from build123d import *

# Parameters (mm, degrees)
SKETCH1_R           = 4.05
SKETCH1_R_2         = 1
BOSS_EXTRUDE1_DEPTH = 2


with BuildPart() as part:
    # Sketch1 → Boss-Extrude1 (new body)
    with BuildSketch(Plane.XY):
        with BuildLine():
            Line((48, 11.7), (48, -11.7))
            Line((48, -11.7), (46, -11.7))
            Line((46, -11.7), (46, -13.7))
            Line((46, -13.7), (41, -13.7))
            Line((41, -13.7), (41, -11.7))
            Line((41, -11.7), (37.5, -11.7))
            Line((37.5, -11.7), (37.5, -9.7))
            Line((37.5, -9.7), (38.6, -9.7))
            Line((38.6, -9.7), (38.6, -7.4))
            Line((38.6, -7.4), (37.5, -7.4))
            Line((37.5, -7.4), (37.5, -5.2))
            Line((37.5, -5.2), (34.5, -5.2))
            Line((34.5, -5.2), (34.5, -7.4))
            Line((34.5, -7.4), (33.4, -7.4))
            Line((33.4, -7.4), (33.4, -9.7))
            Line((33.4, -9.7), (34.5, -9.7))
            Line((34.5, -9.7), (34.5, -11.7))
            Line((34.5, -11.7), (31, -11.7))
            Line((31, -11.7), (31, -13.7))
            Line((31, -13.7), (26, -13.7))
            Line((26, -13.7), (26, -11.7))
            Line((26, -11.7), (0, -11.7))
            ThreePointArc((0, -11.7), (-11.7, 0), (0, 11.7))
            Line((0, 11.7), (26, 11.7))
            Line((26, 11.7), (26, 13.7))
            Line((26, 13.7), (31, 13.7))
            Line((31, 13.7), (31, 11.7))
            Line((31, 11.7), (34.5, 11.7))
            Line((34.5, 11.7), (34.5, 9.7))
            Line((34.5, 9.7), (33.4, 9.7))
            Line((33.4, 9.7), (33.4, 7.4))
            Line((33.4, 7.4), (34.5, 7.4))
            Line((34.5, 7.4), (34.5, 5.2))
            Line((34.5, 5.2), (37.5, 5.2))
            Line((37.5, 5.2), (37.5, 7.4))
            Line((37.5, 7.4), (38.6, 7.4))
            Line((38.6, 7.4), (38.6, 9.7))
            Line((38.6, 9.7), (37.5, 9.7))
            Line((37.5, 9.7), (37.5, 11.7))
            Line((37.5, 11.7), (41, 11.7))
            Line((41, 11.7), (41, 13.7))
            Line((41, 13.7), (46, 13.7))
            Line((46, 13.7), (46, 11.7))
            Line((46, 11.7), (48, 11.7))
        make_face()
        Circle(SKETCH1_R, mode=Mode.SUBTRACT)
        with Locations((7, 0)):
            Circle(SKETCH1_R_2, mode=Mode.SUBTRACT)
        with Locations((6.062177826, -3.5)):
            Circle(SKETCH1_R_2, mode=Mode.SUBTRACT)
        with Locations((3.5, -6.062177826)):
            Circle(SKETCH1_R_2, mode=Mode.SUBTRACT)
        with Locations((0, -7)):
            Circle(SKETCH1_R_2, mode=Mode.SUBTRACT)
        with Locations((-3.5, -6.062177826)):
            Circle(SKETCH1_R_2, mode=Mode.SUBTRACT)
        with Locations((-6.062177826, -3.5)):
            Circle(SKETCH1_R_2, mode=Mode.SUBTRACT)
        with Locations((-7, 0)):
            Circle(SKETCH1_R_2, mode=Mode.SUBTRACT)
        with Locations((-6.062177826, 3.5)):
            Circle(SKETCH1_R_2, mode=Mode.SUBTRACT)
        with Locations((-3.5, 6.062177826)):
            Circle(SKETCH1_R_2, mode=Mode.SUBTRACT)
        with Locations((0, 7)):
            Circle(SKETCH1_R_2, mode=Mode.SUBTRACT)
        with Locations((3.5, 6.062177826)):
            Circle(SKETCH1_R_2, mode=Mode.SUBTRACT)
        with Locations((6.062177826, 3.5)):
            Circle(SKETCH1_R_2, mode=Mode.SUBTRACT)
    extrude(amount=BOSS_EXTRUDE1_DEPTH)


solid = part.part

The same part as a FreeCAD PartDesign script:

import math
import FreeCAD as App
import Part
import Sketcher
from FreeCAD import Vector
Q = App.Units.Quantity

doc = App.newDocument("Part")
body = doc.addObject("PartDesign::Body", "Body")

# Sketch on XY plane
sketch1 = body.newObject("Sketcher::SketchObject", "Sketch")
sketch1.AttachmentSupport = (doc.getObject("XY_Plane"), [""])
sketch1.MapMode = "FlatFace"
sketch1.addGeometry([
    Part.LineSegment(Vector(48, -11.7, 0), Vector(48, 11.7, 0)),  # 0
    Part.LineSegment(Vector(48, 11.7, 0), Vector(46, 11.7, 0)),  # 1
    Part.LineSegment(Vector(46, 11.7, 0), Vector(46, 13.7, 0)),  # 2
    Part.LineSegment(Vector(46, 13.7, 0), Vector(41, 13.7, 0)),  # 3
    Part.LineSegment(Vector(41, 13.7, 0), Vector(41, 11.7, 0)),  # 4
    Part.LineSegment(Vector(41, 11.7, 0), Vector(37.5, 11.7, 0)),  # 5
    Part.LineSegment(Vector(37.5, 11.7, 0), Vector(37.5, 9.7, 0)),  # 6
    Part.LineSegment(Vector(37.5, 9.7, 0), Vector(38.6, 9.7, 0)),  # 7
    Part.LineSegment(Vector(38.6, 9.7, 0), Vector(38.6, 7.4, 0)),  # 8
    Part.LineSegment(Vector(38.6, 7.4, 0), Vector(37.5, 7.4, 0)),  # 9
    Part.LineSegment(Vector(37.5, 7.4, 0), Vector(37.5, 5.2, 0)),  # 10
    Part.LineSegment(Vector(37.5, 5.2, 0), Vector(34.5, 5.2, 0)),  # 11
    Part.LineSegment(Vector(34.5, 5.2, 0), Vector(34.5, 7.4, 0)),  # 12
    Part.LineSegment(Vector(34.5, 7.4, 0), Vector(33.4, 7.4, 0)),  # 13
    Part.LineSegment(Vector(33.4, 7.4, 0), Vector(33.4, 9.7, 0)),  # 14
    Part.LineSegment(Vector(33.4, 9.7, 0), Vector(34.5, 9.7, 0)),  # 15
    Part.LineSegment(Vector(34.5, 9.7, 0), Vector(34.5, 11.7, 0)),  # 16
    Part.LineSegment(Vector(34.5, 11.7, 0), Vector(31, 11.7, 0)),  # 17
    Part.LineSegment(Vector(31, 11.7, 0), Vector(31, 13.7, 0)),  # 18
    Part.LineSegment(Vector(31, 13.7, 0), Vector(26, 13.7, 0)),  # 19
    Part.LineSegment(Vector(26, 13.7, 0), Vector(26, 11.7, 0)),  # 20
    Part.LineSegment(Vector(26, 11.7, 0), Vector(0, 11.7, 0)),  # 21
    Part.ArcOfCircle(Part.Circle(Vector(0, 0, 0), Vector(0, 0, 1), 11.7), math.radians(90), math.radians(270)),  # 22
    Part.LineSegment(Vector(0, -11.7, 0), Vector(26, -11.7, 0)),  # 23
    Part.LineSegment(Vector(26, -11.7, 0), Vector(26, -13.7, 0)),  # 24
    Part.LineSegment(Vector(26, -13.7, 0), Vector(31, -13.7, 0)),  # 25
    Part.LineSegment(Vector(31, -13.7, 0), Vector(31, -11.7, 0)),  # 26
    Part.LineSegment(Vector(31, -11.7, 0), Vector(34.5, -11.7, 0)),  # 27
    Part.LineSegment(Vector(34.5, -11.7, 0), Vector(34.5, -9.7, 0)),  # 28
    Part.LineSegment(Vector(34.5, -9.7, 0), Vector(33.4, -9.7, 0)),  # 29
    Part.LineSegment(Vector(33.4, -9.7, 0), Vector(33.4, -7.4, 0)),  # 30
    Part.LineSegment(Vector(33.4, -7.4, 0), Vector(34.5, -7.4, 0)),  # 31
    Part.LineSegment(Vector(34.5, -7.4, 0), Vector(34.5, -5.2, 0)),  # 32
    Part.LineSegment(Vector(34.5, -5.2, 0), Vector(37.5, -5.2, 0)),  # 33
    Part.LineSegment(Vector(37.5, -5.2, 0), Vector(37.5, -7.4, 0)),  # 34
    Part.LineSegment(Vector(37.5, -7.4, 0), Vector(38.6, -7.4, 0)),  # 35
    Part.LineSegment(Vector(38.6, -7.4, 0), Vector(38.6, -9.7, 0)),  # 36
    Part.LineSegment(Vector(38.6, -9.7, 0), Vector(37.5, -9.7, 0)),  # 37
    Part.LineSegment(Vector(37.5, -9.7, 0), Vector(37.5, -11.7, 0)),  # 38
    Part.LineSegment(Vector(37.5, -11.7, 0), Vector(41, -11.7, 0)),  # 39
    Part.LineSegment(Vector(41, -11.7, 0), Vector(41, -13.7, 0)),  # 40
    Part.LineSegment(Vector(41, -13.7, 0), Vector(46, -13.7, 0)),  # 41
    Part.LineSegment(Vector(46, -13.7, 0), Vector(46, -11.7, 0)),  # 42
    Part.LineSegment(Vector(46, -11.7, 0), Vector(48, -11.7, 0)),  # 43
    Part.Circle(Vector(3.5, -6.1, 0), Vector(0, 0, 1), 1),  # 44
    Part.Circle(Vector(6.1, -3.5, 0), Vector(0, 0, 1), 1),  # 45
    Part.Circle(Vector(0, -7, 0), Vector(0, 0, 1), 1),  # 46
    Part.Circle(Vector(-3.5, -6.1, 0), Vector(0, 0, 1), 1),  # 47
    Part.Circle(Vector(-6.1, -3.5, 0), Vector(0, 0, 1), 1),  # 48
    Part.Circle(Vector(7, 0, 0), Vector(0, 0, 1), 1),  # 49
    Part.Circle(Vector(6.1, 3.5, 0), Vector(0, 0, 1), 1),  # 50
    Part.Circle(Vector(3.5, 6.1, 0), Vector(0, 0, 1), 1),  # 51
    Part.Circle(Vector(0, 0, 0), Vector(0, 0, 1), 4),  # 52
    Part.Circle(Vector(-7, 0, 0), Vector(0, 0, 1), 1),  # 53
    Part.Circle(Vector(-6.1, 3.5, 0), Vector(0, 0, 1), 1),  # 54
    Part.Circle(Vector(0, 7, 0), Vector(0, 0, 1), 1),  # 55
    Part.Circle(Vector(-3.5, 6.1, 0), Vector(0, 0, 1), 1),  # 56
], False)
sketch1.addConstraint([
    Sketcher.Constraint("Coincident", 0, 2, 1, 1),
    Sketcher.Constraint("Coincident", 1, 2, 2, 1),
    Sketcher.Constraint("Coincident", 2, 2, 3, 1),
    Sketcher.Constraint("Coincident", 3, 2, 4, 1),
    Sketcher.Constraint("Coincident", 4, 2, 5, 1),
    Sketcher.Constraint("Coincident", 5, 2, 6, 1),
    Sketcher.Constraint("Coincident", 6, 2, 7, 1),
    Sketcher.Constraint("Coincident", 7, 2, 8, 1),
    Sketcher.Constraint("Coincident", 8, 2, 9, 1),
    Sketcher.Constraint("Coincident", 9, 2, 10, 1),
    Sketcher.Constraint("Coincident", 10, 2, 11, 1),
    Sketcher.Constraint("Coincident", 11, 2, 12, 1),
    Sketcher.Constraint("Coincident", 12, 2, 13, 1),
    Sketcher.Constraint("Coincident", 13, 2, 14, 1),
    Sketcher.Constraint("Coincident", 14, 2, 15, 1),
    Sketcher.Constraint("Coincident", 15, 2, 16, 1),
    Sketcher.Constraint("Coincident", 16, 2, 17, 1),
    Sketcher.Constraint("Coincident", 17, 2, 18, 1),
    Sketcher.Constraint("Coincident", 18, 2, 19, 1),
    Sketcher.Constraint("Coincident", 19, 2, 20, 1),
    Sketcher.Constraint("Coincident", 20, 2, 21, 1),
    Sketcher.Constraint("Tangent", 21, 2, 22, 1),
    Sketcher.Constraint("Tangent", 22, 2, 23, 1),
    Sketcher.Constraint("Coincident", 23, 2, 24, 1),
    Sketcher.Constraint("Coincident", 24, 2, 25, 1),
    Sketcher.Constraint("Coincident", 25, 2, 26, 1),
    Sketcher.Constraint("Coincident", 26, 2, 27, 1),
    Sketcher.Constraint("Coincident", 27, 2, 28, 1),
    Sketcher.Constraint("Coincident", 28, 2, 29, 1),
    Sketcher.Constraint("Coincident", 29, 2, 30, 1),
    Sketcher.Constraint("Coincident", 30, 2, 31, 1),
    Sketcher.Constraint("Coincident", 31, 2, 32, 1),
    Sketcher.Constraint("Coincident", 32, 2, 33, 1),
    Sketcher.Constraint("Coincident", 33, 2, 34, 1),
    Sketcher.Constraint("Coincident", 34, 2, 35, 1),
    Sketcher.Constraint("Coincident", 35, 2, 36, 1),
    Sketcher.Constraint("Coincident", 36, 2, 37, 1),
    Sketcher.Constraint("Coincident", 37, 2, 38, 1),
    Sketcher.Constraint("Coincident", 38, 2, 39, 1),
    Sketcher.Constraint("Coincident", 39, 2, 40, 1),
    Sketcher.Constraint("Coincident", 40, 2, 41, 1),
    Sketcher.Constraint("Coincident", 41, 2, 42, 1),
    Sketcher.Constraint("Coincident", 42, 2, 43, 1),
    Sketcher.Constraint("Coincident", 43, 2, 0, 1),
    Sketcher.Constraint("Vertical", 0),
    Sketcher.Constraint("Horizontal", 1),
    Sketcher.Constraint("Vertical", 2),
    Sketcher.Constraint("Horizontal", 3),
    Sketcher.Constraint("Vertical", 4),
    Sketcher.Constraint("Horizontal", 5),
    Sketcher.Constraint("Vertical", 6),
    Sketcher.Constraint("Horizontal", 7),
    Sketcher.Constraint("Vertical", 8),
    Sketcher.Constraint("Horizontal", 9),
    Sketcher.Constraint("Vertical", 10),
    Sketcher.Constraint("Horizontal", 11),
    Sketcher.Constraint("Vertical", 12),
    Sketcher.Constraint("Horizontal", 13),
    Sketcher.Constraint("Vertical", 14),
    Sketcher.Constraint("Horizontal", 15),
    Sketcher.Constraint("Vertical", 16),
    Sketcher.Constraint("Horizontal", 17),
    Sketcher.Constraint("Vertical", 18),
    Sketcher.Constraint("Horizontal", 19),
    Sketcher.Constraint("Vertical", 20),
    Sketcher.Constraint("Horizontal", 21),
    Sketcher.Constraint("Horizontal", 23),
    Sketcher.Constraint("Vertical", 24),
    Sketcher.Constraint("Horizontal", 25),
    Sketcher.Constraint("Vertical", 26),
    Sketcher.Constraint("Horizontal", 27),
    Sketcher.Constraint("Vertical", 28),
    Sketcher.Constraint("Horizontal", 29),
    Sketcher.Constraint("Vertical", 30),
    Sketcher.Constraint("Horizontal", 31),
    Sketcher.Constraint("Vertical", 32),
    Sketcher.Constraint("Horizontal", 33),
    Sketcher.Constraint("Vertical", 34),
    Sketcher.Constraint("Horizontal", 35),
    Sketcher.Constraint("Vertical", 36),
    Sketcher.Constraint("Horizontal", 37),
    Sketcher.Constraint("Vertical", 38),
    Sketcher.Constraint("Horizontal", 39),
    Sketcher.Constraint("Vertical", 40),
    Sketcher.Constraint("Horizontal", 41),
    Sketcher.Constraint("Vertical", 42),
    Sketcher.Constraint("Horizontal", 43),
    Sketcher.Constraint("Coincident", 22, 3, -1, 1),
    Sketcher.Constraint("Coincident", 52, 3, -1, 1),
    Sketcher.Constraint("Equal", 44, 45),
    Sketcher.Constraint("Equal", 45, 46),
    Sketcher.Constraint("Equal", 46, 47),
    Sketcher.Constraint("Equal", 47, 48),
    Sketcher.Constraint("Equal", 48, 49),
    Sketcher.Constraint("Equal", 49, 50),
    Sketcher.Constraint("Equal", 50, 51),
    Sketcher.Constraint("Equal", 51, 53),
    Sketcher.Constraint("Equal", 53, 54),
    Sketcher.Constraint("Equal", 54, 55),
    Sketcher.Constraint("Equal", 55, 56),
    Sketcher.Constraint("Symmetric", 48, 3, 50, 3, -1, 1),
    Sketcher.Constraint("Symmetric", 47, 3, 51, 3, -1, 1),
    Sketcher.Constraint("Symmetric", 49, 3, 53, 3, -1, 1),
    Sketcher.Constraint("Symmetric", 45, 3, 54, 3, -1, 1),
    Sketcher.Constraint("Symmetric", 46, 3, 55, 3, -1, 1),
    Sketcher.Constraint("Symmetric", 44, 3, 56, 3, -1, 1),
    Sketcher.Constraint("Symmetric", 44, 3, 47, 3, -2),
    Sketcher.Constraint("Symmetric", 45, 3, 48, 3, -2),
    Sketcher.Constraint("Symmetric", 19, 2, 24, 2, -1),
    Sketcher.Constraint("Symmetric", 17, 2, 26, 2, -1),
    Sketcher.Constraint("Symmetric", 15, 2, 28, 2, -1),
    Sketcher.Constraint("Symmetric", 13, 2, 30, 2, -1),
    Sketcher.Constraint("Symmetric", 11, 2, 32, 2, -1),
    Sketcher.Constraint("Symmetric", 9, 2, 34, 2, -1),
    Sketcher.Constraint("Symmetric", 7, 2, 36, 2, -1),
    Sketcher.Constraint("Symmetric", 5, 2, 38, 2, -1),
    Sketcher.Constraint("Symmetric", 3, 2, 40, 2, -1),
    Sketcher.Constraint("Symmetric", 1, 2, 42, 2, -1),
    Sketcher.Constraint("PointOnObject", 46, 3, -2),
    Sketcher.Constraint("PointOnObject", 49, 3, -1),
    Sketcher.Constraint("Horizontal", 1, 2, 4, 2),
    Sketcher.Constraint("Horizontal", 9, 2, 12, 2),
    Sketcher.Constraint("Horizontal", 7, 2, 14, 2),
    Sketcher.Constraint("Horizontal", 5, 2, 16, 2),
    Sketcher.Constraint("Horizontal", 3, 2, 18, 2),
    Sketcher.Constraint("Horizontal", 17, 2, 20, 2),
    Sketcher.Constraint("Vertical", 6, 2, 9, 2),
    Sketcher.Constraint("Vertical", 12, 2, 15, 2),
    Sketcher.Constraint("Equal", 9, 13),
    Sketcher.Constraint("Equal", 5, 17),
    Sketcher.Constraint("Equal", 3, 19),
    Sketcher.Constraint("Equal", 43, 2),
    Sketcher.Constraint("Equal", 4, 6),
    Sketcher.Constraint("Diameter", 44, Q("2 mm")),
    Sketcher.Constraint("Diameter", 52, Q("8.1 mm")),
    Sketcher.Constraint("Radius", 22, Q("11.7 mm")),
    Sketcher.Constraint("DistanceX", 1, 2, 1, 1, Q("2 mm")),
    Sketcher.Constraint("DistanceX", 3, 2, 3, 1, Q("5 mm")),
    Sketcher.Constraint("DistanceX", 11, 2, 11, 1, Q("3 mm")),
    Sketcher.Constraint("DistanceX", 21, 2, 21, 1, Q("26 mm")),
    Sketcher.Constraint("DistanceX", 5, 2, 5, 1, Q("3.5 mm")),
    Sketcher.Constraint("DistanceX", 7, 1, 7, 2, Q("1.1 mm")),
    Sketcher.Constraint("DistanceY", 8, 2, 8, 1, Q("2.3 mm")),
    Sketcher.Constraint("DistanceY", 10, 2, 10, 1, Q("2.2 mm")),
    Sketcher.Constraint("DistanceY", 46, 3, -1, 1, Q("7 mm")),
    Sketcher.Constraint("DistanceX", -1, 1, 49, 3, Q("7 mm")),
    Sketcher.Constraint("DistanceX", 47, 3, 44, 3, Q("7 mm")),
    Sketcher.Constraint("DistanceY", 45, 3, 50, 3, Q("7 mm")),
    Sketcher.Constraint("DistanceY", 44, 3, -1, 1, Q("6.062178 mm")),
    Sketcher.Constraint("DistanceX", -1, 1, 45, 3, Q("6.062178 mm")),
])
pad1 = body.newObject("PartDesign::Pad", "Pad")
pad1.Profile = sketch1
pad1.Length = 2

doc.recompute()
